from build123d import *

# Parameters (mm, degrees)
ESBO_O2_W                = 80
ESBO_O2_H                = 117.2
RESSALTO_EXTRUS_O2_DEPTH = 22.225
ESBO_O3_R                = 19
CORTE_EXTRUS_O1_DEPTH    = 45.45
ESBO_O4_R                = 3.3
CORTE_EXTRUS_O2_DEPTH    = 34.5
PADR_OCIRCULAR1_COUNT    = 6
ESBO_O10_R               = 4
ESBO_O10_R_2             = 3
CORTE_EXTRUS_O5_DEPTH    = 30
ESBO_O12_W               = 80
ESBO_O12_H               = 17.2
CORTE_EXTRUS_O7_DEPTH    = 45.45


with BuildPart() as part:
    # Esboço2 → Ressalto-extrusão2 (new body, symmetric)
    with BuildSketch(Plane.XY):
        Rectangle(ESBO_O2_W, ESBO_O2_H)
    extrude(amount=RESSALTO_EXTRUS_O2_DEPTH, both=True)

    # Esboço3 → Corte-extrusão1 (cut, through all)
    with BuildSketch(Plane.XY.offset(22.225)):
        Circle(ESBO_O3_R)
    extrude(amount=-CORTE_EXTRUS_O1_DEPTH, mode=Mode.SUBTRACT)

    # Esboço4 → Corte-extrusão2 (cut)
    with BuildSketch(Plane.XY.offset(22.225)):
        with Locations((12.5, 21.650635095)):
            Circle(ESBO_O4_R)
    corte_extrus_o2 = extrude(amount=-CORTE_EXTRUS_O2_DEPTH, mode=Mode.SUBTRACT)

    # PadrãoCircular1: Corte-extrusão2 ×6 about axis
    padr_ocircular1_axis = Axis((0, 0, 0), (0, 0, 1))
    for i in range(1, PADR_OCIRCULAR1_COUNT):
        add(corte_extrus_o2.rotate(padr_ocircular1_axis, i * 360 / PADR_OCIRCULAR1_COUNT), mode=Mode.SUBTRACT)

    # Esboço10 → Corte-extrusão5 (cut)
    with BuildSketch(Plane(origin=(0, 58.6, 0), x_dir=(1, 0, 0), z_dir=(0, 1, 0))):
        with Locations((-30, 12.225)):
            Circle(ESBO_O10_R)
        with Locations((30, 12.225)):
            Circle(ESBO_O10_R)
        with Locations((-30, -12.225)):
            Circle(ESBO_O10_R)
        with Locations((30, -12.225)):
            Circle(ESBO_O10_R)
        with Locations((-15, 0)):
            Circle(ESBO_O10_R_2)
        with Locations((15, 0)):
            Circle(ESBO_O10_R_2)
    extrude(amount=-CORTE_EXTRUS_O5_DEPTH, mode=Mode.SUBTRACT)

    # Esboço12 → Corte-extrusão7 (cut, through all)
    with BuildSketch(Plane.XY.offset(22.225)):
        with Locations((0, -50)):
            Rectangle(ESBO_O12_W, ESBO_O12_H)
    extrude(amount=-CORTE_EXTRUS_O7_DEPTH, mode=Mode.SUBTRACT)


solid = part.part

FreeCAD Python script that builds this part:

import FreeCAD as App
import Part
import Sketcher

doc = App.newDocument("Part")
body = doc.addObject("PartDesign::Body", "Body")

# Sketch on XY plane
sketch1 = doc.addObject("Sketcher::SketchObject", "Sketch")
body.addObject(sketch1)
sketch1.AttachmentSupport = (doc.XY_Plane, [""])
sketch1.MapMode = "FlatFace"
sketch1.addGeometry(Part.LineSegment(App.Vector(-40, 59, 0), App.Vector(-40, -59, 0)), False)
sketch1.addGeometry(Part.LineSegment(App.Vector(-40, -59, 0), App.Vector(40, -59, 0)), False)
sketch1.addGeometry(Part.LineSegment(App.Vector(40, -59, 0), App.Vector(40, 59, 0)), False)
sketch1.addGeometry(Part.LineSegment(App.Vector(40, 59, 0), App.Vector(-40, 59, 0)), False)
sketch1.addConstraint(Sketcher.Constraint("Coincident", 0, 2, 1, 1))
sketch1.addConstraint(Sketcher.Constraint("Coincident", 1, 2, 2, 1))
sketch1.addConstraint(Sketcher.Constraint("Coincident", 2, 2, 3, 1))
sketch1.addConstraint(Sketcher.Constraint("Coincident", 3, 2, 0, 1))
sketch1.addConstraint(Sketcher.Constraint("Vertical", 0))
sketch1.addConstraint(Sketcher.Constraint("Horizontal", 1))
sketch1.addConstraint(Sketcher.Constraint("Vertical", 2))
sketch1.addConstraint(Sketcher.Constraint("Horizontal", 3))
sketch1.addConstraint(Sketcher.Constraint("Symmetric", 0, 2, 2, 2, -1, 1))
sketch1.addConstraint(Sketcher.Constraint("DistanceX", 1, 1, 1, 2, 80.0))
sketch1.addConstraint(Sketcher.Constraint("DistanceY", 0, 2, 0, 1, 117.2))
pad1 = doc.addObject("PartDesign::Pad", "Pad")
body.addObject(pad1)
pad1.Profile = sketch1
pad1.Length = 44.45
pad1.Midplane = True

# Sketch on XY plane
sketch2 = doc.addObject("Sketcher::SketchObject", "Sketch001")
body.addObject(sketch2)
sketch2.AttachmentSupport = (doc.XY_Plane, [""])
sketch2.MapMode = "FlatFace"
sketch2.AttachmentOffset = App.Placement(App.Vector(0, 0, 22.225), App.Rotation())
sketch2.addGeometry(Part.Circle(App.Vector(0, 0, 0), App.Vector(0, 0, 1), 19), False)
sketch2.addConstraint(Sketcher.Constraint("Coincident", 0, 3, -1, 1))
sketch2.addConstraint(Sketcher.Constraint("Diameter", 0, 38.0))
pocket1 = doc.addObject("PartDesign::Pocket", "Pocket")
body.addObject(pocket1)
pocket1.Profile = sketch2
pocket1.Type = "ThroughAll"

# Sketch on XY plane
sketch3 = doc.addObject("Sketcher::SketchObject", "Sketch002")
body.addObject(sketch3)
sketch3.AttachmentSupport = (doc.XY_Plane, [""])
sketch3.MapMode = "FlatFace"
sketch3.AttachmentOffset = App.Placement(App.Vector(0, 0, 22.225), App.Rotation())
sketch3.addGeometry(Part.Circle(App.Vector(12.5, 21.7, 0), App.Vector(0, 0, 1), 3.3), False)
sketch3.addConstraint(Sketcher.Constraint("Diameter", 0, 6.6))
sketch3.addConstraint(Sketcher.Constraint("DistanceX", -1, 1, 0, 3, 12.5))
sketch3.addConstraint(Sketcher.Constraint("DistanceY", -1, 1, 0, 3, 21.650635))
pocket2 = doc.addObject("PartDesign::Pocket", "Pocket001")
body.addObject(pocket2)
pocket2.Profile = sketch3
pocket2.Length = 34.5
doc.recompute()

polarpattern = doc.addObject("PartDesign::PolarPattern", "PolarPattern")
body.addObject(polarpattern)
polarpattern.Originals = [pocket2]
polarpattern.Axis = (doc.Z_Axis, [""])
polarpattern.Angle = 360
polarpattern.Occurrences = 6
body.Tip = polarpattern

# Sketch on XZ plane
sketch4 = doc.addObject("Sketcher::SketchObject", "Sketch003")
body.addObject(sketch4)
sketch4.AttachmentSupport = (doc.XZ_Plane, [""])
sketch4.MapMode = "FlatFace"
sketch4.AttachmentOffset = App.Placement(App.Vector(0, 0, -58.6), App.Rotation())
sketch4.addGeometry(Part.Circle(App.Vector(-30, -12.2, 0), App.Vector(0, 0, 1), 4), False)
sketch4.addGeometry(Part.Circle(App.Vector(30, -12.2, 0), App.Vector(0, 0, 1), 4), False)
sketch4.addGeometry(Part.Circle(App.Vector(-30, 12.2, 0), App.Vector(0, 0, 1), 4), False)
sketch4.addGeometry(Part.Circle(App.Vector(30, 12.2, 0), App.Vector(0, 0, 1), 4), False)
sketch4.addGeometry(Part.Circle(App.Vector(-15, 0, 0), App.Vector(0, 0, 1), 3), False)
sketch4.addGeometry(Part.Circle(App.Vector(15, 0, 0), App.Vector(0, 0, 1), 3), False)
sketch4.addConstraint(Sketcher.Constraint("Equal", 0, 1))
sketch4.addConstraint(Sketcher.Constraint("Equal", 1, 2))
sketch4.addConstraint(Sketcher.Constraint("Equal", 2, 3))
sketch4.addConstraint(Sketcher.Constraint("Equal", 4, 5))
sketch4.addConstraint(Sketcher.Constraint("Symmetric", 1, 3, 2, 3, -1, 1))
sketch4.addConstraint(Sketcher.Constraint("Symmetric", 0, 3, 3, 3, -1, 1))
sketch4.addConstraint(Sketcher.Constraint("Symmetric", 4, 3, 5, 3, -1, 1))
sketch4.addConstraint(Sketcher.Constraint("Symmetric", 0, 3, 1, 3, -2))
sketch4.addConstraint(Sketcher.Constraint("PointOnObject", 4, 3, -1))
sketch4.addConstraint(Sketcher.Constraint("Diameter", 0, 8.0))
sketch4.addConstraint(Sketcher.Constraint("Diameter", 4, 6.0))
sketch4.addConstraint(Sketcher.Constraint("DistanceX", 0, 3, -1, 1, 30.0))
sketch4.addConstraint(Sketcher.Constraint("DistanceX", 4, 3, -1, 1, 15.0))
sketch4.addConstraint(Sketcher.Constraint("DistanceY", 0, 3, 2, 3, 24.45))
pocket3 = doc.addObject("PartDesign::Pocket", "Pocket002")
body.addObject(pocket3)
pocket3.Profile = sketch4
pocket3.Length = 30
pocket3.Reversed = True

# Sketch on XY plane
sketch5 = doc.addObject("Sketcher::SketchObject", "Sketch004")
body.addObject(sketch5)
sketch5.AttachmentSupport = (doc.XY_Plane, [""])
sketch5.MapMode = "FlatFace"
sketch5.AttachmentOffset = App.Placement(App.Vector(0, 0, 22.225), App.Rotation())
sketch5.addGeometry(Part.LineSegment(App.Vector(-40, -41, 0), App.Vector(-40, -59, 0)), False)
sketch5.addGeometry(Part.LineSegment(App.Vector(-40, -59, 0), App.Vector(40, -59, 0)), False)
sketch5.addGeometry(Part.LineSegment(App.Vector(40, -59, 0), App.Vector(40, -41, 0)), False)
sketch5.addGeometry(Part.LineSegment(App.Vector(40, -41, 0), App.Vector(-40, -41, 0)), False)
sketch5.addConstraint(Sketcher.Constraint("Coincident", 0, 2, 1, 1))
sketch5.addConstraint(Sketcher.Constraint("Coincident", 1, 2, 2, 1))
sketch5.addConstraint(Sketcher.Constraint("Coincident", 2, 2, 3, 1))
sketch5.addConstraint(Sketcher.Constraint("Coincident", 3, 2, 0, 1))
sketch5.addConstraint(Sketcher.Constraint("Vertical", 0))
sketch5.addConstraint(Sketcher.Constraint("Horizontal", 1))
sketch5.addConstraint(Sketcher.Constraint("Vertical", 2))
sketch5.addConstraint(Sketcher.Constraint("Horizontal", 3))
sketch5.addConstraint(Sketcher.Constraint("DistanceX", 1, 1, 1, 2, 80.0))
sketch5.addConstraint(Sketcher.Constraint("DistanceY", 0, 2, 0, 1, 17.2))
sketch5.addConstraint(Sketcher.Constraint("DistanceX", 0, 2, -1, 1, 40.0))
sketch5.addConstraint(Sketcher.Constraint("DistanceY", 0, 2, -1, 1, 58.6))
pocket4 = doc.addObject("PartDesign::Pocket", "Pocket003")
body.addObject(pocket4)
pocket4.Profile = sketch5
pocket4.Type = "ThroughAll"

doc.recompute()
